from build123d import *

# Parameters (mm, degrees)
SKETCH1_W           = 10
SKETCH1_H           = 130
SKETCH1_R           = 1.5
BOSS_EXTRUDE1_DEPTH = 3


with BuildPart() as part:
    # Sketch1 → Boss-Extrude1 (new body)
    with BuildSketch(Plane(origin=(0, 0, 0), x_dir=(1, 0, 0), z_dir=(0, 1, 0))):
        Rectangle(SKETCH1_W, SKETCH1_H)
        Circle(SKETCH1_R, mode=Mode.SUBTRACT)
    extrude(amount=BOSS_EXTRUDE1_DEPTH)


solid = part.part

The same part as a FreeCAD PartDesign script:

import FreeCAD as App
import Part
import Sketcher

doc = App.newDocument("Part")
params = doc.addObject("Spreadsheet::Sheet", "Params")
for row, (alias, value) in enumerate([
    ("sketch1_diameter", "3 mm"),
    ("sketch1_width", "10 mm"),
    ("sketch1_height", "130 mm"),
    ("pad1_length", "3 mm"),
], start=1):
    params.set(f"A{row}", alias)
    params.set(f"B{row}", "=" + value)
    params.setAlias(f"B{row}", alias)

body = doc.addObject("PartDesign::Body", "Body")

# Sketch on XZ plane
sketch1 = body.newObject("Sketcher::SketchObject", "Sketch")
sketch1.AttachmentSupport = (doc.getObject("XZ_Plane"), [""])
sketch1.MapMode = "FlatFace"
sketch1.addGeometry([
    Part.LineSegment(App.Vector(-5, -65, 0), App.Vector(-5, 65, 0)),  # 0
    Part.LineSegment(App.Vector(-5, 65, 0), App.Vector(5, 65, 0)),  # 1
    Part.LineSegment(App.Vector(5, 65, 0), App.Vector(5, -65, 0)),  # 2
    Part.LineSegment(App.Vector(5, -65, 0), App.Vector(-5, -65, 0)),  # 3
    Part.Circle(App.Vector(0, 0, 0), App.Vector(0, 0, 1), 1.5),  # 4
], False)
sketch1.addConstraint([
    Sketcher.Constraint("Coincident", 0, 2, 1, 1),
    Sketcher.Constraint("Coincident", 1, 2, 2, 1),
    Sketcher.Constraint("Coincident", 2, 2, 3, 1),
    Sketcher.Constraint("Coincident", 3, 2, 0, 1),
    Sketcher.Constraint("Vertical", 0),
    Sketcher.Constraint("Horizontal", 1),
    Sketcher.Constraint("Vertical", 2),
    Sketcher.Constraint("Horizontal", 3),
    Sketcher.Constraint("Coincident", 4, 3, -1, 1),
    Sketcher.Constraint("Symmetric", 0, 2, 2, 2, -1, 1),
    Sketcher.Constraint("Diameter", 4, 3.0),
    Sketcher.Constraint("DistanceX", 1, 1, 1, 2, 10.0),
    Sketcher.Constraint("DistanceY", 0, 1, 0, 2, 130.0),
])
sketch1.setExpression("Constraints[10]", "Params.sketch1_diameter")
sketch1.setExpression("Constraints[11]", "Params.sketch1_width")
sketch1.setExpression("Constraints[12]", "Params.sketch1_height")
pad1 = body.newObject("PartDesign::Pad", "Pad")
pad1.Profile = sketch1
pad1.setExpression("Length", "Params.pad1_length")
pad1.Reversed = True

doc.recompute()
